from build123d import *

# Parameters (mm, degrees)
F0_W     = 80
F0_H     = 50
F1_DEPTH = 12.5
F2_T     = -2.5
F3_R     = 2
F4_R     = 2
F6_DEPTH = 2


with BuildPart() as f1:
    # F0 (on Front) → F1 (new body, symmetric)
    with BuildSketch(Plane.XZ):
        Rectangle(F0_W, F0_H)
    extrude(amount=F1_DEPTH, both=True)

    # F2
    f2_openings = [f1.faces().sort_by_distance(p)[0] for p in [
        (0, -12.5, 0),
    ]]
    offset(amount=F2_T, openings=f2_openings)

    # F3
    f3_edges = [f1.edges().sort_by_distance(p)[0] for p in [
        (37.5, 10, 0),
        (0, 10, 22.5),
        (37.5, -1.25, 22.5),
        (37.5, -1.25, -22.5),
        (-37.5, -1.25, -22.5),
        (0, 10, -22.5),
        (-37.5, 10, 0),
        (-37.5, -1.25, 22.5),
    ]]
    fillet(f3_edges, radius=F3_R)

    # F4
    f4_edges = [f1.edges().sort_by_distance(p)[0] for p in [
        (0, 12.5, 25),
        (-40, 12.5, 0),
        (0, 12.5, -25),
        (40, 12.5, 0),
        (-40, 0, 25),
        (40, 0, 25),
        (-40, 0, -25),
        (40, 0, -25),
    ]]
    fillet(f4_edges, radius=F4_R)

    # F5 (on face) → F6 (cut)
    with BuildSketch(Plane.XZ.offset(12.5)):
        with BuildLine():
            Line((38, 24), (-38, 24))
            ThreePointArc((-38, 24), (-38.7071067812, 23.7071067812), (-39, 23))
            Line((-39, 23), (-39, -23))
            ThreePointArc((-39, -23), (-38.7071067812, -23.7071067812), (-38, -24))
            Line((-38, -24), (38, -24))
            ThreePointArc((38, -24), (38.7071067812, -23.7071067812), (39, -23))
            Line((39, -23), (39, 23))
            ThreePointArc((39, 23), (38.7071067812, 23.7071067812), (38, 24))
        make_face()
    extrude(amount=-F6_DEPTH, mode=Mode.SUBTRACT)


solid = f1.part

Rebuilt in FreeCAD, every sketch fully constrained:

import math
import FreeCAD as App
import Part
import Sketcher
from FreeCAD import Vector
Q = App.Units.Quantity


def edges_at(feature, points):
    """Names of the edges that pass closest to the given points."""
    edges = feature.Shape.Edges
    near = lambda p: min(range(len(edges)), key=lambda i: edges[i].distToShape(Part.Vertex(*p))[0])
    return sorted({f"Edge{near(p) + 1}" for p in points})


def faces_at(feature, points):
    """Names of the faces that lie closest to the given points."""
    faces = feature.Shape.Faces
    near = lambda p: min(range(len(faces)), key=lambda i: faces[i].distToShape(Part.Vertex(*p))[0])
    return sorted({f"Face{near(p) + 1}" for p in points})


def add_polygon(sketch, points):
    """Adds a closed chain of lines whose ends are joined by coincident constraints."""
    first, n = sketch.GeometryCount, len(points)
    for a, b in zip(points, points[1:] + points[:1]):
        sketch.addGeometry(Part.LineSegment(App.Vector(*a, 0), App.Vector(*b, 0)), False)
    for i in range(n):
        sketch.addConstraint(Sketcher.Constraint("Coincident", first + i, 2, first + (i + 1) % n, 1))

doc = App.newDocument("Part")
body = doc.addObject("PartDesign::Body", "Body")

sketch1 = body.newObject("Sketcher::SketchObject", "Sketch")
sketch1.AttachmentSupport = (doc.getObject("XZ_Plane"), [""])
sketch1.MapMode = "FlatFace"
add_polygon(sketch1, [(-40, 25), (-40, -25), (40, -25), (40, 25)])
sketch1.addConstraint([
    Sketcher.Constraint("Vertical", 0),
    Sketcher.Constraint("Horizontal", 1),
    Sketcher.Constraint("Vertical", 2),
    Sketcher.Constraint("Horizontal", 3),
    Sketcher.Constraint("Symmetric", 0, 2, 2, 2, -1, 1),
    Sketcher.Constraint("DistanceX", 1, 1, 1, 2, Q("80 mm")),
    Sketcher.Constraint("DistanceY", 0, 2, 0, 1, Q("50 mm")),
])
pad1 = body.newObject("PartDesign::Pad", "Pad")
pad1.Profile = sketch1
pad1.Length = 25
pad1.Midplane = True
doc.recompute()

thickness = body.newObject("PartDesign::Thickness", "Thickness")
thickness.Base = (pad1, faces_at(pad1, [(0, -12.5, 0)]))
thickness.Value = 2.5
thickness.Reversed = True
thickness.Join = "Arc"
doc.recompute()

fillet = body.newObject("PartDesign::Fillet", "Fillet")
fillet.Base = (thickness, edges_at(thickness, [
    (37.5, 10, 0),
    (0, 10, 22.5),
    (37.5, -1.25, 22.5),
    (37.5, -1.25, -22.5),
    (-37.5, -1.25, -22.5),
    (0, 10, -22.5),
    (-37.5, 10, 0),
    (-37.5, -1.25, 22.5),
]))
fillet.Radius = 2
doc.recompute()

fillet2 = body.newObject("PartDesign::Fillet", "Fillet001")
fillet2.Base = (fillet, edges_at(fillet, [
    (0, 12.5, 25),
    (-40, 12.5, 0),
    (0, 12.5, -25),
    (40, 12.5, 0),
    (-40, 0, 25),
    (40, 0, 25),
    (-40, 0, -25),
    (40, 0, -25),
]))
fillet2.Radius = 2

sketch2 = body.newObject("Sketcher::SketchObject", "Sketch001")
sketch2.AttachmentSupport = (doc.getObject("XZ_Plane"), [""])
sketch2.MapMode = "FlatFace"
sketch2.AttachmentOffset = App.Placement(Vector(0, 0, 12.5), App.Rotation())
sketch2.addGeometry([
    Part.LineSegment(Vector(38, 24, 0), Vector(-38, 24, 0)),
    Part.ArcOfCircle(Part.Circle(Vector(-38, 23, 0), Vector(0, 0, 1), 1), math.radians(90), math.radians(180)),
    Part.LineSegment(Vector(-39, 23, 0), Vector(-39, -23, 0)),
    Part.ArcOfCircle(Part.Circle(Vector(-38, -23, 0), Vector(0, 0, 1), 1), math.radians(180), math.radians(270)),
    Part.LineSegment(Vector(-38, -24, 0), Vector(38, -24, 0)),
    Part.ArcOfCircle(Part.Circle(Vector(38, -23, 0), Vector(0, 0, 1), 1), math.radians(-90), math.radians(0)),
    Part.LineSegment(Vector(39, -23, 0), Vector(39, 23, 0)),
    Part.ArcOfCircle(Part.Circle(Vector(38, 23, 0), Vector(0, 0, 1), 1), math.radians(0), math.radians(90)),
], False)
sketch2.addConstraint([
    Sketcher.Constraint("Tangent", 0, 2, 1, 1),
    Sketcher.Constraint("Tangent", 1, 2, 2, 1),
    Sketcher.Constraint("Tangent", 2, 2, 3, 1),
    Sketcher.Constraint("Tangent", 3, 2, 4, 1),
    Sketcher.Constraint("Tangent", 4, 2, 5, 1),
    Sketcher.Constraint("Tangent", 5, 2, 6, 1),
    Sketcher.Constraint("Tangent", 6, 2, 7, 1),
    Sketcher.Constraint("Tangent", 7, 2, 0, 1),
    Sketcher.Constraint("Horizontal", 0),
    Sketcher.Constraint("Vertical", 2),
    Sketcher.Constraint("Horizontal", 4),
    Sketcher.Constraint("Vertical", 6),
    Sketcher.Constraint("Equal", 1, 3),
    Sketcher.Constraint("Equal", 3, 5),
    Sketcher.Constraint("Equal", 5, 7),
    Sketcher.Constraint("Symmetric", 1, 3, 5, 3, -1, 1),
    Sketcher.Constraint("Radius", 1, Q("1 mm")),
    Sketcher.Constraint("DistanceX", 0, 2, 0, 1, Q("76 mm")),
    Sketcher.Constraint("DistanceY", 2, 2, 2, 1, Q("46 mm")),
])
pocket1 = body.newObject("PartDesign::Pocket", "Pocket")
pocket1.Profile = sketch2
pocket1.Length = 2

doc.recompute()
